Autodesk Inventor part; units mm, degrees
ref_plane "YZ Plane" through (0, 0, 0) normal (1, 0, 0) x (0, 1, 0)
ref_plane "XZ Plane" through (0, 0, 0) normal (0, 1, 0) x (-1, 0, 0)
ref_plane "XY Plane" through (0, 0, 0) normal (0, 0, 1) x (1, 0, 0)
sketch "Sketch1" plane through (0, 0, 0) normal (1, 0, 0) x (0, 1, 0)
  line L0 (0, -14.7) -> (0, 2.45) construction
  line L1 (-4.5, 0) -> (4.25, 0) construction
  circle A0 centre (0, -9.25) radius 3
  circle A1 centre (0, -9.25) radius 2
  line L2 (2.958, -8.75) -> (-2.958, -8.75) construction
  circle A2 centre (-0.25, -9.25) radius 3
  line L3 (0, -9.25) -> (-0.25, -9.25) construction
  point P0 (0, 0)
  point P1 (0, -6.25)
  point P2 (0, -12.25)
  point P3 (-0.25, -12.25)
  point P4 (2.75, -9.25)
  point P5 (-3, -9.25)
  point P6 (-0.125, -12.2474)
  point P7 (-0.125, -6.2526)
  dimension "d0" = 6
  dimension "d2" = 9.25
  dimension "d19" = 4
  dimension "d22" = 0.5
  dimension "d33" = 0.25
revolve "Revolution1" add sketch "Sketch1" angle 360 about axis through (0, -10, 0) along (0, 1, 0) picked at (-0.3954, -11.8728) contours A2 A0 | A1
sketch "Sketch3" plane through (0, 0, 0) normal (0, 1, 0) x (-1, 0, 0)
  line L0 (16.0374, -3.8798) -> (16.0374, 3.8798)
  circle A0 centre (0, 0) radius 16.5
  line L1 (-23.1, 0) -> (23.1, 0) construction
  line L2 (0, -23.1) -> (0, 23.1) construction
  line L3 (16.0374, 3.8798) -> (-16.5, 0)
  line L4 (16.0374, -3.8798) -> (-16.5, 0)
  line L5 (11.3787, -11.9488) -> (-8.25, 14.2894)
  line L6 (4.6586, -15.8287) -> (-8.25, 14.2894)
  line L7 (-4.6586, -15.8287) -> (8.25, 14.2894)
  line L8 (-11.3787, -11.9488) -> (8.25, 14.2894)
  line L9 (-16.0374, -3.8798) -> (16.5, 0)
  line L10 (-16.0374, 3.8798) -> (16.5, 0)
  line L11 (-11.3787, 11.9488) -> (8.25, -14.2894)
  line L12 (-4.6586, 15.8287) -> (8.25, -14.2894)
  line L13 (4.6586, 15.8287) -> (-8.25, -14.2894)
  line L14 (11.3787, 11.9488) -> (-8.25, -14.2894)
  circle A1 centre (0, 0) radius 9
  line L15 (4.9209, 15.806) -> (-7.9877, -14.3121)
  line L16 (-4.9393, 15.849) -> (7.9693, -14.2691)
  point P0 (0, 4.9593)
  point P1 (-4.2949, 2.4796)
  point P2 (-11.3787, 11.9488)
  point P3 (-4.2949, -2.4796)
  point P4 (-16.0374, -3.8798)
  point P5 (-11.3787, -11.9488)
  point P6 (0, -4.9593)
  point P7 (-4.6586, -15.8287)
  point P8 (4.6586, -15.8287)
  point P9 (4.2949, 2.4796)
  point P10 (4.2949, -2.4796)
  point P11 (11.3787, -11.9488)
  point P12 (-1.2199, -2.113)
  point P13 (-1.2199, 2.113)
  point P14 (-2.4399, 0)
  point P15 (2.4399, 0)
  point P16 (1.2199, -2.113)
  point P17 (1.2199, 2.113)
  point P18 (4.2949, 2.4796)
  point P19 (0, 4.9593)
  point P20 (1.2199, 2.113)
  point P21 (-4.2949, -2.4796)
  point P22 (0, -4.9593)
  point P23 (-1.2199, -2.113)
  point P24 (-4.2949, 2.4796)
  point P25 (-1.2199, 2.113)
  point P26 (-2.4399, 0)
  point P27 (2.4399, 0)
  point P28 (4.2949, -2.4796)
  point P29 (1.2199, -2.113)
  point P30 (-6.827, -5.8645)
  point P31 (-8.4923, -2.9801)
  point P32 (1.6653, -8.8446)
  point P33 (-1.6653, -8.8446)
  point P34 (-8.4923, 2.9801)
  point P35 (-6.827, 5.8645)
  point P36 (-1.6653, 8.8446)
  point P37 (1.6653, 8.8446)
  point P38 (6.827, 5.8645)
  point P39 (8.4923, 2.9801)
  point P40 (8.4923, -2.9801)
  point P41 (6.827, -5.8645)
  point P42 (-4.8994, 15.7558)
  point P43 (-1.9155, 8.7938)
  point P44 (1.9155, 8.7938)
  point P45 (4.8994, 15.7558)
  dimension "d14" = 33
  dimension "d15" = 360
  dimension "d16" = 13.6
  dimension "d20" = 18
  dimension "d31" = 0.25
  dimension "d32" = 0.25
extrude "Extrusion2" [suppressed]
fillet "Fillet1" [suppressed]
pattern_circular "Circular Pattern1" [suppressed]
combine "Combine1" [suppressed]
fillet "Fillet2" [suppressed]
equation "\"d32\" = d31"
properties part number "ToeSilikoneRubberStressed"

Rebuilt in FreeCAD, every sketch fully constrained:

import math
import FreeCAD as App
import Part
import Sketcher

V = App.Vector

doc = App.newDocument("Part")
body = doc.addObject("PartDesign::Body", "Body")

# Sketch on YZ plane
sketch1 = body.newObject("Sketcher::SketchObject", "Sketch")
sketch1.AttachmentSupport = (doc.getObject("YZ_Plane"), [""])
sketch1.MapMode = "FlatFace"
sketch1.addGeometry([
    Part.ArcOfCircle(Part.Circle(V(0, -9.2, 0), V(0, 0, 1), 3), math.radians(92), math.radians(268)),
    Part.ArcOfCircle(Part.Circle(V(-0.2, -9.2, 0), V(0, 0, 1), 3), math.radians(-88), math.radians(88)),
], False)
sketch1.addConstraint([
    Sketcher.Constraint("Coincident", 0, 1, 1, 2),
    Sketcher.Constraint("Coincident", 1, 1, 0, 2),
    Sketcher.Constraint("Equal", 0, 1),
    Sketcher.Constraint("PointOnObject", 0, 3, -2),
    Sketcher.Constraint("Horizontal", 0, 3, 1, 3),
    Sketcher.Constraint("Radius", 0, 3.0),
    Sketcher.Constraint("DistanceY", 0, 3, -1, 1, 9.25),
    Sketcher.Constraint("DistanceX", 1, 3, -1, 1, 0.25),
])
revolution = body.newObject("PartDesign::Revolution", "Revolution")
revolution.Profile = sketch1
revolution.ReferenceAxis = (sketch1, ["H_Axis"])
revolution.Angle = 360

doc.recompute()
